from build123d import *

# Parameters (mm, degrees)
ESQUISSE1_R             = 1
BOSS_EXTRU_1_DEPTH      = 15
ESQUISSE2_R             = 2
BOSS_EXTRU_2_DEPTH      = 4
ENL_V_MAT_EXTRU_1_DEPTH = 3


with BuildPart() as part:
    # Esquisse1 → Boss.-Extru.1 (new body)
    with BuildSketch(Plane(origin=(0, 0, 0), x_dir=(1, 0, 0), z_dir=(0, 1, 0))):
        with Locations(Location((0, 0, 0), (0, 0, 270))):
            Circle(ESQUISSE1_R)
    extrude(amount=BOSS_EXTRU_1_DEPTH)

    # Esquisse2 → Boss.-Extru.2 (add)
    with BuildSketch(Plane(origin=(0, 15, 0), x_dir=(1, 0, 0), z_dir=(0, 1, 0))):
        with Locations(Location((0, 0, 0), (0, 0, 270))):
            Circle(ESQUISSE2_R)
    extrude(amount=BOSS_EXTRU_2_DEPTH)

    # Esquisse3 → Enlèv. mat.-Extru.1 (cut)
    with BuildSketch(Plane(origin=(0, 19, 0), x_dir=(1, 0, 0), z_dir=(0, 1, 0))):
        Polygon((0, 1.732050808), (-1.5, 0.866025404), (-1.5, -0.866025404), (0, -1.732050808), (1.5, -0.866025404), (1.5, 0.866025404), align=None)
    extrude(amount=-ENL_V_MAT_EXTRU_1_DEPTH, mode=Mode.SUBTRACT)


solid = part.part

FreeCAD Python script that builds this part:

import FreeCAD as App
import Part
import Sketcher
Q = App.Units.Quantity


def add_polygon(sketch, points):
    """Adds a closed chain of lines whose ends are joined by coincident constraints."""
    first, n = sketch.GeometryCount, len(points)
    for a, b in zip(points, points[1:] + points[:1]):
        sketch.addGeometry(Part.LineSegment(App.Vector(*a, 0), App.Vector(*b, 0)), False)
    for i in range(n):
        sketch.addConstraint(Sketcher.Constraint("Coincident", first + i, 2, first + (i + 1) % n, 1))

doc = App.newDocument("Part")
body = doc.addObject("PartDesign::Body", "Body")

# Sketch on XZ plane
sketch1 = body.newObject("Sketcher::SketchObject", "Sketch")
sketch1.AttachmentSupport = (doc.getObject("XZ_Plane"), [""])
sketch1.MapMode = "FlatFace"
sketch1.addGeometry(Part.Circle(App.Vector(0, 0, 0), App.Vector(0, 0, 1), 1), False)
sketch1.addConstraint(Sketcher.Constraint("Coincident", 0, 3, -1, 1))
sketch1.addConstraint(Sketcher.Constraint("Diameter", 0, 2.0))
pad1 = body.newObject("PartDesign::Pad", "Pad")
pad1.Profile = sketch1
pad1.Length = 15
pad1.Reversed = True

# Sketch on XZ plane
sketch2 = body.newObject("Sketcher::SketchObject", "Sketch001")
sketch2.AttachmentSupport = (doc.getObject("XZ_Plane"), [""])
sketch2.MapMode = "FlatFace"
sketch2.AttachmentOffset = App.Placement(App.Vector(0, 0, -15), App.Rotation())
sketch2.addGeometry(Part.Circle(App.Vector(0, 0, 0), App.Vector(0, 0, 1), 2), False)
sketch2.addConstraint(Sketcher.Constraint("Coincident", 0, 3, -1, 1))
sketch2.addConstraint(Sketcher.Constraint("Diameter", 0, 4.0))
pad2 = body.newObject("PartDesign::Pad", "Pad001")
pad2.Profile = sketch2
pad2.Length = 4
pad2.Reversed = True

# Sketch on XZ plane
sketch3 = body.newObject("Sketcher::SketchObject", "Sketch002")
sketch3.AttachmentSupport = (doc.getObject("XZ_Plane"), [""])
sketch3.MapMode = "FlatFace"
sketch3.AttachmentOffset = App.Placement(App.Vector(0, 0, -19), App.Rotation())
add_polygon(sketch3, [(0, -1.7), (-1.5, -0.9), (-1.5, 0.9), (0, 1.7), (1.5, 0.9), (1.5, -0.9)])  # lines 0-5
sketch3.addConstraint(Sketcher.Constraint("Vertical", 1))
sketch3.addConstraint(Sketcher.Constraint("Vertical", 4))
sketch3.addConstraint(Sketcher.Constraint("Symmetric", 0, 2, 3, 2, -1, 1))
sketch3.addConstraint(Sketcher.Constraint("Symmetric", 2, 2, 5, 2, -1, 1))
sketch3.addConstraint(Sketcher.Constraint("PointOnObject", 2, 2, -2))
sketch3.addConstraint(Sketcher.Constraint("Parallel", 2, 5))
sketch3.addConstraint(Sketcher.Constraint("Horizontal", 1, 2, 3, 2))
sketch3.addConstraint(Sketcher.Constraint("Angle", 0, Q("150 deg")))
sketch3.addConstraint(Sketcher.Constraint("DistanceX", 1, 2, 3, 2, 3.0))
sketch3.addConstraint(Sketcher.Constraint("DistanceY", 1, 1, 1, 2, 1.732051))
pocket1 = body.newObject("PartDesign::Pocket", "Pocket")
pocket1.Profile = sketch3
pocket1.Length = 3
pocket1.Reversed = True

doc.recompute()
